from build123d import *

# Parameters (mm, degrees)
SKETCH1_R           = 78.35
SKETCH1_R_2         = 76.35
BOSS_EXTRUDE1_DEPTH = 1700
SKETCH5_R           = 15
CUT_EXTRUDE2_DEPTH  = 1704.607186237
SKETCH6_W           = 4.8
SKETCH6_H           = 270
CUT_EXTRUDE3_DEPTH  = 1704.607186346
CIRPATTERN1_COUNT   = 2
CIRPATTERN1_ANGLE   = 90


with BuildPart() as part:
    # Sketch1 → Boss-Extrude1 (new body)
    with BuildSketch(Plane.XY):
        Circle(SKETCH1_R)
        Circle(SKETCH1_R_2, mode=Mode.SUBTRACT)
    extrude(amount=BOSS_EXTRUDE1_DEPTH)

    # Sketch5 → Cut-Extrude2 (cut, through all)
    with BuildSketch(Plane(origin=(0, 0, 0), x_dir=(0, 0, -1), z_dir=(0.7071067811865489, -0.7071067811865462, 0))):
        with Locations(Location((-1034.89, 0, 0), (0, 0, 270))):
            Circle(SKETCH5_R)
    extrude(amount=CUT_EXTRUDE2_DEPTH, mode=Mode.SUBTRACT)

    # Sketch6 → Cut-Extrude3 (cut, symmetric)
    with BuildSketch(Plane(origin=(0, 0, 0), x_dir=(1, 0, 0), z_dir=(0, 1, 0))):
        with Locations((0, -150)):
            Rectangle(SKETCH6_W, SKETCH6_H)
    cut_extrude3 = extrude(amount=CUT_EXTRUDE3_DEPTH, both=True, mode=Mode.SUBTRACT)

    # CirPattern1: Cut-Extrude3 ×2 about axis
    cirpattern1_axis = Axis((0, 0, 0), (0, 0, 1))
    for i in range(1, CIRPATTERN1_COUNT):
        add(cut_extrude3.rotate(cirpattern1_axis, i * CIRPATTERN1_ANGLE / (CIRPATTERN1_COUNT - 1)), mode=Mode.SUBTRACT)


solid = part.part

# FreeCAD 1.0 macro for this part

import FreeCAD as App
import Part
import Sketcher

V = App.Vector


def add_polygon(sketch, points):
    """Adds a closed chain of lines whose ends are joined by coincident constraints."""
    first, n = sketch.GeometryCount, len(points)
    for a, b in zip(points, points[1:] + points[:1]):
        sketch.addGeometry(Part.LineSegment(App.Vector(*a, 0), App.Vector(*b, 0)), False)
    for i in range(n):
        sketch.addConstraint(Sketcher.Constraint("Coincident", first + i, 2, first + (i + 1) % n, 1))

doc = App.newDocument("Part")
body = doc.addObject("PartDesign::Body", "Body")

# Sketch on XY plane
sketch1 = body.newObject("Sketcher::SketchObject", "Sketch")
sketch1.AttachmentSupport = (doc.getObject("XY_Plane"), [""])
sketch1.MapMode = "FlatFace"
sketch1.addGeometry(Part.Circle(V(0, 0, 0), V(0, 0, 1), 78), False)
sketch1.addGeometry(Part.Circle(V(0, 0, 0), V(0, 0, 1), 76), False)
sketch1.addConstraint(Sketcher.Constraint("Coincident", 0, 3, -1, 1))
sketch1.addConstraint(Sketcher.Constraint("Coincident", 1, 3, -1, 1))
sketch1.addConstraint(Sketcher.Constraint("Diameter", 0, 156.7))
sketch1.addConstraint(Sketcher.Constraint("Diameter", 1, 152.7))
pad1 = body.newObject("PartDesign::Pad", "Pad")
pad1.Profile = sketch1
pad1.Length = 1700

# Sketch on an angled plane
sketch2 = body.newObject("Sketcher::SketchObject", "Sketch001")
sketch2.Placement = App.Placement(V(0, 0, 0), App.Rotation(V(0, 0, -1), V(0.707106781, 0.707106781, 0), V(0.707106781, -0.707106781, 0), "ZXY"))
sketch2.addGeometry(Part.Circle(V(-1035, 0, 0), V(0, 0, 1), 15), False)
sketch2.addConstraint(Sketcher.Constraint("PointOnObject", 0, 3, -1))
sketch2.addConstraint(Sketcher.Constraint("Diameter", 0, 30.0))
sketch2.addConstraint(Sketcher.Constraint("DistanceX", 0, 3, -1, 1, 1034.89))
pocket1 = body.newObject("PartDesign::Pocket", "Pocket")
pocket1.Profile = sketch2
pocket1.Type = "ThroughAll"
pocket1.Reversed = True

# Sketch on XZ plane
sketch3 = body.newObject("Sketcher::SketchObject", "Sketch002")
sketch3.AttachmentSupport = (doc.getObject("XZ_Plane"), [""])
sketch3.MapMode = "FlatFace"
add_polygon(sketch3, [(-2.4, 15), (-2.4, 285), (2.4, 285), (2.4, 15)])  # lines 0-3
sketch3.addConstraint(Sketcher.Constraint("Vertical", 0))
sketch3.addConstraint(Sketcher.Constraint("Horizontal", 1))
sketch3.addConstraint(Sketcher.Constraint("Vertical", 2))
sketch3.addConstraint(Sketcher.Constraint("Horizontal", 3))
sketch3.addConstraint(Sketcher.Constraint("DistanceY", 0, 1, 0, 2, 270.0))
sketch3.addConstraint(Sketcher.Constraint("DistanceX", 1, 1, 1, 2, 4.8))
sketch3.addConstraint(Sketcher.Constraint("DistanceY", -1, 1, 0, 2, 285.0))
sketch3.addConstraint(Sketcher.Constraint("DistanceX", 0, 2, -1, 1, 2.4))
pocket2 = body.newObject("PartDesign::Pocket", "Pocket001")
pocket2.Profile = sketch3
pocket2.Length = 3409.214373
pocket2.Midplane = True
doc.recompute()

polarpattern = body.newObject("PartDesign::PolarPattern", "PolarPattern")
polarpattern.Originals = [pocket2]
polarpattern.Axis = (doc.getObject("Z_Axis"), [""])
polarpattern.Angle = 90
polarpattern.Occurrences = 2
body.Tip = polarpattern

doc.recompute()
